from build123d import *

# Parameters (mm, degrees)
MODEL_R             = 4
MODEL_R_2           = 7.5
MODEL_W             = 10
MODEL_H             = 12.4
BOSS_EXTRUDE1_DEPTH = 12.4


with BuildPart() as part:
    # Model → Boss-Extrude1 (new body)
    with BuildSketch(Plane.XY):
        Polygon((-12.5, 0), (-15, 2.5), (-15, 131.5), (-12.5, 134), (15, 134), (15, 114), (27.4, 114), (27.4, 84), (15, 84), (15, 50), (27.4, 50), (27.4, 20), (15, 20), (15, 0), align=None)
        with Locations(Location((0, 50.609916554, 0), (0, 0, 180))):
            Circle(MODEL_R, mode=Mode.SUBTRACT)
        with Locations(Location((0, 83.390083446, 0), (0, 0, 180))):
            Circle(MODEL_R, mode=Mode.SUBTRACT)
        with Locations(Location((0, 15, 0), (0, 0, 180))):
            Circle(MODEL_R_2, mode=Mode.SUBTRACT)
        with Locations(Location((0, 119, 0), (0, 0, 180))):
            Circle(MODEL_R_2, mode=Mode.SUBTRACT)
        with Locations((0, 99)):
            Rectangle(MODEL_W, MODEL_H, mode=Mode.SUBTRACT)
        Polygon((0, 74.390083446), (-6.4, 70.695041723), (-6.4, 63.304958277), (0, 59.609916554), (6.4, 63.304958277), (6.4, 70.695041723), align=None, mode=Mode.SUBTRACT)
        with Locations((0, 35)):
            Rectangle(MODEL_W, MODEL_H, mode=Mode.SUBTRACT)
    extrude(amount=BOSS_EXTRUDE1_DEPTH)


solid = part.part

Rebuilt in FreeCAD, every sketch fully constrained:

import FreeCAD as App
import Part
import Sketcher
Q = App.Units.Quantity


def add_polygon(sketch, points):
    """Adds a closed chain of lines whose ends are joined by coincident constraints."""
    first, n = sketch.GeometryCount, len(points)
    for a, b in zip(points, points[1:] + points[:1]):
        sketch.addGeometry(Part.LineSegment(App.Vector(*a, 0), App.Vector(*b, 0)), False)
    for i in range(n):
        sketch.addConstraint(Sketcher.Constraint("Coincident", first + i, 2, first + (i + 1) % n, 1))

doc = App.newDocument("Part")
body = doc.addObject("PartDesign::Body", "Body")

sketch1 = doc.addObject("Sketcher::SketchObject", "Sketch")
body.addObject(sketch1)
sketch1.AttachmentSupport = (doc.XY_Plane, [""])
sketch1.MapMode = "FlatFace"
add_polygon(sketch1, [(-15, 2.5), (-12.5, 0), (15, 0), (15, 20), (27.4, 20), (27.4, 50), (15, 50), (15, 84), (27.4, 84), (27.4, 114), (15, 114), (15, 134), (-12.5, 134), (-15, 131.5)])
sketch1.addGeometry(Part.Circle(App.Vector(0, 15, 0), App.Vector(0, 0, 1), 7.5), False)
add_polygon(sketch1, [(-5, 28.8), (-5, 41.2), (5, 41.2), (5, 28.8)])
sketch1.addGeometry(Part.Circle(App.Vector(0, 50.609917, 0), App.Vector(0, 0, 1), 4), False)
add_polygon(sketch1, [(0, 74.390083), (6.4, 70.695042), (6.4, 63.304958), (0, 59.609917), (-6.4, 63.304958), (-6.4, 70.695042)])
sketch1.addGeometry(Part.Circle(App.Vector(0, 83.390083, 0), App.Vector(0, 0, 1), 4), False)
add_polygon(sketch1, [(-5, 92.8), (-5, 105.2), (5, 105.2), (5, 92.8)])
sketch1.addGeometry(Part.Circle(App.Vector(0, 119, 0), App.Vector(0, 0, 1), 7.5), False)
sketch1.addConstraint(Sketcher.Constraint("Horizontal", 1))
sketch1.addConstraint(Sketcher.Constraint("Vertical", 2))
sketch1.addConstraint(Sketcher.Constraint("Horizontal", 3))
sketch1.addConstraint(Sketcher.Constraint("Vertical", 4))
sketch1.addConstraint(Sketcher.Constraint("Horizontal", 5))
sketch1.addConstraint(Sketcher.Constraint("Vertical", 6))
sketch1.addConstraint(Sketcher.Constraint("Horizontal", 7))
sketch1.addConstraint(Sketcher.Constraint("Vertical", 8))
sketch1.addConstraint(Sketcher.Constraint("Horizontal", 9))
sketch1.addConstraint(Sketcher.Constraint("Vertical", 10))
sketch1.addConstraint(Sketcher.Constraint("Horizontal", 11))
sketch1.addConstraint(Sketcher.Constraint("Vertical", 13))
sketch1.addConstraint(Sketcher.Constraint("Vertical", 15))
sketch1.addConstraint(Sketcher.Constraint("Horizontal", 16))
sketch1.addConstraint(Sketcher.Constraint("Vertical", 17))
sketch1.addConstraint(Sketcher.Constraint("Horizontal", 18))
sketch1.addConstraint(Sketcher.Constraint("Vertical", 21))
sketch1.addConstraint(Sketcher.Constraint("Vertical", 24))
sketch1.addConstraint(Sketcher.Constraint("Vertical", 27))
sketch1.addConstraint(Sketcher.Constraint("Horizontal", 28))
sketch1.addConstraint(Sketcher.Constraint("Vertical", 29))
sketch1.addConstraint(Sketcher.Constraint("Horizontal", 30))
sketch1.addConstraint(Sketcher.Constraint("Equal", 19, 26))
sketch1.addConstraint(Sketcher.Constraint("Equal", 14, 31))
sketch1.addConstraint(Sketcher.Constraint("Symmetric", 21, 2, 23, 2, -2))
sketch1.addConstraint(Sketcher.Constraint("PointOnObject", 14, 3, -2))
sketch1.addConstraint(Sketcher.Constraint("PointOnObject", 19, 3, -2))
sketch1.addConstraint(Sketcher.Constraint("PointOnObject", 26, 3, -2))
sketch1.addConstraint(Sketcher.Constraint("PointOnObject", 31, 3, -2))
sketch1.addConstraint(Sketcher.Constraint("PointOnObject", 0, 2, -1))
sketch1.addConstraint(Sketcher.Constraint("PointOnObject", 22, 2, -2))
sketch1.addConstraint(Sketcher.Constraint("PointOnObject", 25, 2, -2))
sketch1.addConstraint(Sketcher.Constraint("Perpendicular", 0, 12))
sketch1.addConstraint(Sketcher.Constraint("Parallel", 20, 23))
sketch1.addConstraint(Sketcher.Constraint("Parallel", 22, 25))
sketch1.addConstraint(Sketcher.Constraint("Vertical", 2, 2, 5, 2))
sketch1.addConstraint(Sketcher.Constraint("Vertical", 4, 2, 7, 2))
sketch1.addConstraint(Sketcher.Constraint("Vertical", 6, 2, 9, 2))
sketch1.addConstraint(Sketcher.Constraint("Vertical", 0, 2, 11, 2))
sketch1.addConstraint(Sketcher.Constraint("Vertical", 18, 2, 27, 2))
sketch1.addConstraint(Sketcher.Constraint("Vertical", 17, 2, 28, 2))
sketch1.addConstraint(Sketcher.Constraint("Equal", 4, 8))
sketch1.addConstraint(Sketcher.Constraint("Equal", 2, 10))
sketch1.addConstraint(Sketcher.Constraint("Equal", 9, 15))
sketch1.addConstraint(Sketcher.Constraint("Equal", 17, 27))
sketch1.addConstraint(Sketcher.Constraint("Equal", 0, 12))
sketch1.addConstraint(Sketcher.Constraint("Diameter", 14, Q("15 mm")))
sketch1.addConstraint(Sketcher.Constraint("Diameter", 19, Q("8 mm")))
sketch1.addConstraint(Sketcher.Constraint("DistanceX", 16, 1, 16, 2, Q("10 mm")))
sketch1.addConstraint(Sketcher.Constraint("DistanceY", 2, 1, 2, 2, Q("20 mm")))
sketch1.addConstraint(Sketcher.Constraint("DistanceY", 4, 1, 4, 2, Q("30 mm")))
sketch1.addConstraint(Sketcher.Constraint("DistanceY", 6, 1, 6, 2, Q("34 mm")))
sketch1.addConstraint(Sketcher.Constraint("DistanceY", 13, 2, 13, 1, Q("129 mm")))
sketch1.addConstraint(Sketcher.Constraint("Angle", 20, Q("-30 deg")))
sketch1.addConstraint(Sketcher.Constraint("DistanceX", 1, 1, 1, 2, Q("27.5 mm")))
sketch1.addConstraint(Sketcher.Constraint("DistanceX", 3, 1, 3, 2, Q("12.4 mm")))
sketch1.addConstraint(Sketcher.Constraint("DistanceY", -1, 1, 14, 3, Q("15 mm")))
sketch1.addConstraint(Sketcher.Constraint("DistanceY", -1, 1, 31, 3, Q("119 mm")))
sketch1.addConstraint(Sketcher.Constraint("DistanceX", -1, 1, 1, 2, Q("15 mm")))
sketch1.addConstraint(Sketcher.Constraint("DistanceX", 15, 2, -1, 1, Q("5 mm")))
sketch1.addConstraint(Sketcher.Constraint("DistanceX", 20, 2, 7, 2, Q("21 mm")))
sketch1.addConstraint(Sketcher.Constraint("DistanceY", 19, 3, 22, 2, Q("9 mm")))
sketch1.addConstraint(Sketcher.Constraint("DistanceY", 25, 2, 26, 3, Q("9 mm")))
sketch1.addConstraint(Sketcher.Constraint("DistanceY", -1, 1, 15, 2, Q("41.2 mm")))
sketch1.addConstraint(Sketcher.Constraint("DistanceY", -1, 1, 27, 2, Q("105.2 mm")))
sketch1.addConstraint(Sketcher.Constraint("DistanceY", 21, 2, 21, 1, Q("7.390083 mm")))
sketch1.addConstraint(Sketcher.Constraint("DistanceY", -1, 1, 20, 2, Q("70.695042 mm")))
pad1 = doc.addObject("PartDesign::Pad", "Pad")
body.addObject(pad1)
pad1.Profile = sketch1
pad1.Length = 12.4

doc.recompute()
